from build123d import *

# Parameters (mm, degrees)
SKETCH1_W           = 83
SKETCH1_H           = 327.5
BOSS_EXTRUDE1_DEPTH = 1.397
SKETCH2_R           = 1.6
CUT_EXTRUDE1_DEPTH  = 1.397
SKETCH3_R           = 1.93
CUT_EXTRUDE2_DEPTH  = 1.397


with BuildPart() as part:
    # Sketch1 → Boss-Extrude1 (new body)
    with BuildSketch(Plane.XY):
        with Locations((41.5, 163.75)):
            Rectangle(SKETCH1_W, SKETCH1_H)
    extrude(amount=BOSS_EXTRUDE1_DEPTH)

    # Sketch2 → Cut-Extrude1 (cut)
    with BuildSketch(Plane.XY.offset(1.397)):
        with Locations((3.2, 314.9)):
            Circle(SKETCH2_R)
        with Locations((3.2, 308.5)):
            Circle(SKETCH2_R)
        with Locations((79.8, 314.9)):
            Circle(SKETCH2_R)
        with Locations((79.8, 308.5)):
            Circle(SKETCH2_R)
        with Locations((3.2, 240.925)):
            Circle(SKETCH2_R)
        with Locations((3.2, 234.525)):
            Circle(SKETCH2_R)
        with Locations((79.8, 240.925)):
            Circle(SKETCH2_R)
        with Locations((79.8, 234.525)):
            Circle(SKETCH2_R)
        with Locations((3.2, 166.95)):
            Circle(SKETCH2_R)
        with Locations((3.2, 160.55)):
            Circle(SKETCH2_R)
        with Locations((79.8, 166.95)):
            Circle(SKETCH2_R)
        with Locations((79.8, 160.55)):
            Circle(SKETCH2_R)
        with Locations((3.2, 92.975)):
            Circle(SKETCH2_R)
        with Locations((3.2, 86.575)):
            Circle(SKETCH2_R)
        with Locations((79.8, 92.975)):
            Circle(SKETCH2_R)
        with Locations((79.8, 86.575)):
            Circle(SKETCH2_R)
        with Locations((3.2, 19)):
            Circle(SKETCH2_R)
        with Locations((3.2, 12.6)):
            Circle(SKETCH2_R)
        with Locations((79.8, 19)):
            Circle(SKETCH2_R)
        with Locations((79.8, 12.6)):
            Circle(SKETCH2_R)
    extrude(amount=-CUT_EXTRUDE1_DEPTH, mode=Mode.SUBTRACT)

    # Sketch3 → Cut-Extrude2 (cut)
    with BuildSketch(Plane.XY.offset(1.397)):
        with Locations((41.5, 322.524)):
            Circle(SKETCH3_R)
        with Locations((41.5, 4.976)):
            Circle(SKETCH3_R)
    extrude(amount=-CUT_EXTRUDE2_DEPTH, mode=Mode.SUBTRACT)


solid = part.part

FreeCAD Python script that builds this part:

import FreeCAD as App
import Part
import Sketcher

V = App.Vector
Q = App.Units.Quantity

doc = App.newDocument("Part")
body = doc.addObject("PartDesign::Body", "Body")

# Sketch on XY plane
sketch1 = body.newObject("Sketcher::SketchObject", "Sketch")
sketch1.AttachmentSupport = (doc.getObject("XY_Plane"), [""])
sketch1.MapMode = "FlatFace"
sketch1.addGeometry([
    Part.LineSegment(V(0, 328, 0), V(0, 0, 0)),
    Part.LineSegment(V(0, 0, 0), V(83, 0, 0)),
    Part.LineSegment(V(83, 0, 0), V(83, 328, 0)),
    Part.LineSegment(V(83, 328, 0), V(0, 328, 0)),
], False)
sketch1.addConstraint([
    Sketcher.Constraint("Coincident", 0, 2, 1, 1),
    Sketcher.Constraint("Coincident", 1, 2, 2, 1),
    Sketcher.Constraint("Coincident", 2, 2, 3, 1),
    Sketcher.Constraint("Coincident", 3, 2, 0, 1),
    Sketcher.Constraint("Vertical", 0),
    Sketcher.Constraint("Horizontal", 1),
    Sketcher.Constraint("Vertical", 2),
    Sketcher.Constraint("Horizontal", 3),
    Sketcher.Constraint("Coincident", 0, 2, -1, 1),
    Sketcher.Constraint("DistanceX", 1, 1, 1, 2, Q("83 mm")),
    Sketcher.Constraint("DistanceY", 0, 2, 0, 1, Q("327.5 mm")),
])
pad1 = body.newObject("PartDesign::Pad", "Pad")
pad1.Profile = sketch1
pad1.Length = 1.397

# Sketch on XY plane
sketch2 = body.newObject("Sketcher::SketchObject", "Sketch001")
sketch2.AttachmentSupport = (doc.getObject("XY_Plane"), [""])
sketch2.MapMode = "FlatFace"
sketch2.AttachmentOffset = App.Placement(V(0, 0, 1.397), App.Rotation())
sketch2.addGeometry([
    Part.Circle(V(3.2, 314.9, 0), V(0, 0, 1), 1.6),  # 0
    Part.Circle(V(3.2, 308.5, 0), V(0, 0, 1), 1.6),  # 1
    Part.Circle(V(79.8, 314.9, 0), V(0, 0, 1), 1.6),  # 2
    Part.Circle(V(79.8, 308.5, 0), V(0, 0, 1), 1.6),  # 3
    Part.Circle(V(3.2, 240.9, 0), V(0, 0, 1), 1.6),  # 4
    Part.Circle(V(3.2, 234.5, 0), V(0, 0, 1), 1.6),  # 5
    Part.Circle(V(79.8, 240.9, 0), V(0, 0, 1), 1.6),  # 6
    Part.Circle(V(79.8, 234.5, 0), V(0, 0, 1), 1.6),  # 7
    Part.Circle(V(3.2, 166.9, 0), V(0, 0, 1), 1.6),  # 8
    Part.Circle(V(3.2, 160.6, 0), V(0, 0, 1), 1.6),  # 9
    Part.Circle(V(79.8, 166.9, 0), V(0, 0, 1), 1.6),  # 10
    Part.Circle(V(79.8, 160.6, 0), V(0, 0, 1), 1.6),  # 11
    Part.Circle(V(3.2, 93, 0), V(0, 0, 1), 1.6),  # 12
    Part.Circle(V(3.2, 86.6, 0), V(0, 0, 1), 1.6),  # 13
    Part.Circle(V(79.8, 93, 0), V(0, 0, 1), 1.6),  # 14
    Part.Circle(V(79.8, 86.6, 0), V(0, 0, 1), 1.6),  # 15
    Part.Circle(V(3.2, 19, 0), V(0, 0, 1), 1.6),  # 16
    Part.Circle(V(3.2, 12.6, 0), V(0, 0, 1), 1.6),  # 17
    Part.Circle(V(79.8, 19, 0), V(0, 0, 1), 1.6),  # 18
    Part.Circle(V(79.8, 12.6, 0), V(0, 0, 1), 1.6),  # 19
], False)
sketch2.addConstraint([
    Sketcher.Constraint("Equal", 0, 1),
    Sketcher.Constraint("Equal", 1, 2),
    Sketcher.Constraint("Equal", 2, 3),
    Sketcher.Constraint("Equal", 3, 4),
    Sketcher.Constraint("Equal", 4, 5),
    Sketcher.Constraint("Equal", 5, 6),
    Sketcher.Constraint("Equal", 6, 7),
    Sketcher.Constraint("Equal", 7, 8),
    Sketcher.Constraint("Equal", 8, 9),
    Sketcher.Constraint("Equal", 9, 10),
    Sketcher.Constraint("Equal", 10, 11),
    Sketcher.Constraint("Equal", 11, 12),
    Sketcher.Constraint("Equal", 12, 13),
    Sketcher.Constraint("Equal", 13, 14),
    Sketcher.Constraint("Equal", 14, 15),
    Sketcher.Constraint("Equal", 15, 16),
    Sketcher.Constraint("Equal", 16, 17),
    Sketcher.Constraint("Equal", 17, 18),
    Sketcher.Constraint("Equal", 18, 19),
    Sketcher.Constraint("Horizontal", 0, 3, 2, 3),
    Sketcher.Constraint("Horizontal", 1, 3, 3, 3),
    Sketcher.Constraint("Horizontal", 4, 3, 6, 3),
    Sketcher.Constraint("Horizontal", 5, 3, 7, 3),
    Sketcher.Constraint("Horizontal", 8, 3, 10, 3),
    Sketcher.Constraint("Horizontal", 9, 3, 11, 3),
    Sketcher.Constraint("Horizontal", 12, 3, 14, 3),
    Sketcher.Constraint("Horizontal", 13, 3, 15, 3),
    Sketcher.Constraint("Horizontal", 16, 3, 18, 3),
    Sketcher.Constraint("Horizontal", 17, 3, 19, 3),
    Sketcher.Constraint("Vertical", 0, 3, 1, 3),
    Sketcher.Constraint("Vertical", 2, 3, 3, 3),
    Sketcher.Constraint("Vertical", 1, 3, 4, 3),
    Sketcher.Constraint("Vertical", 4, 3, 5, 3),
    Sketcher.Constraint("Vertical", 3, 3, 6, 3),
    Sketcher.Constraint("Vertical", 6, 3, 7, 3),
    Sketcher.Constraint("Vertical", 5, 3, 8, 3),
    Sketcher.Constraint("Vertical", 8, 3, 9, 3),
    Sketcher.Constraint("Vertical", 7, 3, 10, 3),
    Sketcher.Constraint("Vertical", 10, 3, 11, 3),
    Sketcher.Constraint("Vertical", 9, 3, 12, 3),
    Sketcher.Constraint("Vertical", 12, 3, 13, 3),
    Sketcher.Constraint("Vertical", 11, 3, 14, 3),
    Sketcher.Constraint("Vertical", 14, 3, 15, 3),
    Sketcher.Constraint("Vertical", 13, 3, 16, 3),
    Sketcher.Constraint("Vertical", 16, 3, 17, 3),
    Sketcher.Constraint("Vertical", 15, 3, 18, 3),
    Sketcher.Constraint("Vertical", 18, 3, 19, 3),
    Sketcher.Constraint("Diameter", 0, Q("3.2 mm")),
    Sketcher.Constraint("DistanceY", -1, 1, 16, 3, Q("19 mm")),
    Sketcher.Constraint("DistanceX", -1, 1, 0, 3, Q("3.2 mm")),
    Sketcher.Constraint("DistanceY", -1, 1, 0, 3, Q("314.9 mm")),
    Sketcher.Constraint("DistanceY", -1, 1, 1, 3, Q("308.5 mm")),
    Sketcher.Constraint("DistanceX", -1, 1, 2, 3, Q("79.8 mm")),
    Sketcher.Constraint("DistanceY", -1, 1, 17, 3, Q("12.6 mm")),
    Sketcher.Constraint("DistanceY", 5, 3, 4, 3, Q("6.4 mm")),
    Sketcher.Constraint("DistanceY", 9, 3, 8, 3, Q("6.4 mm")),
    Sketcher.Constraint("DistanceY", 13, 3, 12, 3, Q("6.4 mm")),
    Sketcher.Constraint("DistanceY", -1, 1, 8, 3, Q("166.95 mm")),
    Sketcher.Constraint("DistanceY", 12, 3, 5, 3, Q("141.55 mm")),
    Sketcher.Constraint("DistanceY", -1, 1, 4, 3, Q("240.925 mm")),
])
pocket1 = body.newObject("PartDesign::Pocket", "Pocket")
pocket1.Profile = sketch2
pocket1.Length = 1.397

# Sketch on XY plane
sketch3 = body.newObject("Sketcher::SketchObject", "Sketch002")
sketch3.AttachmentSupport = (doc.getObject("XY_Plane"), [""])
sketch3.MapMode = "FlatFace"
sketch3.AttachmentOffset = App.Placement(V(0, 0, 1.397), App.Rotation())
sketch3.addGeometry([
    Part.Circle(V(41.5, 322.5, 0), V(0, 0, 1), 1.9),
    Part.Circle(V(41.5, 5, 0), V(0, 0, 1), 1.9),
], False)
sketch3.addConstraint([
    Sketcher.Constraint("Equal", 0, 1),
    Sketcher.Constraint("Vertical", 0, 3, 1, 3),
    Sketcher.Constraint("Diameter", 0, Q("3.86 mm")),
    Sketcher.Constraint("DistanceX", -1, 1, 0, 3, Q("41.5 mm")),
    Sketcher.Constraint("DistanceY", -1, 1, 0, 3, Q("322.524 mm")),
    Sketcher.Constraint("DistanceY", -1, 1, 1, 3, Q("4.976 mm")),
])
pocket2 = body.newObject("PartDesign::Pocket", "Pocket001")
pocket2.Profile = sketch3
pocket2.Length = 1.397

doc.recompute()
